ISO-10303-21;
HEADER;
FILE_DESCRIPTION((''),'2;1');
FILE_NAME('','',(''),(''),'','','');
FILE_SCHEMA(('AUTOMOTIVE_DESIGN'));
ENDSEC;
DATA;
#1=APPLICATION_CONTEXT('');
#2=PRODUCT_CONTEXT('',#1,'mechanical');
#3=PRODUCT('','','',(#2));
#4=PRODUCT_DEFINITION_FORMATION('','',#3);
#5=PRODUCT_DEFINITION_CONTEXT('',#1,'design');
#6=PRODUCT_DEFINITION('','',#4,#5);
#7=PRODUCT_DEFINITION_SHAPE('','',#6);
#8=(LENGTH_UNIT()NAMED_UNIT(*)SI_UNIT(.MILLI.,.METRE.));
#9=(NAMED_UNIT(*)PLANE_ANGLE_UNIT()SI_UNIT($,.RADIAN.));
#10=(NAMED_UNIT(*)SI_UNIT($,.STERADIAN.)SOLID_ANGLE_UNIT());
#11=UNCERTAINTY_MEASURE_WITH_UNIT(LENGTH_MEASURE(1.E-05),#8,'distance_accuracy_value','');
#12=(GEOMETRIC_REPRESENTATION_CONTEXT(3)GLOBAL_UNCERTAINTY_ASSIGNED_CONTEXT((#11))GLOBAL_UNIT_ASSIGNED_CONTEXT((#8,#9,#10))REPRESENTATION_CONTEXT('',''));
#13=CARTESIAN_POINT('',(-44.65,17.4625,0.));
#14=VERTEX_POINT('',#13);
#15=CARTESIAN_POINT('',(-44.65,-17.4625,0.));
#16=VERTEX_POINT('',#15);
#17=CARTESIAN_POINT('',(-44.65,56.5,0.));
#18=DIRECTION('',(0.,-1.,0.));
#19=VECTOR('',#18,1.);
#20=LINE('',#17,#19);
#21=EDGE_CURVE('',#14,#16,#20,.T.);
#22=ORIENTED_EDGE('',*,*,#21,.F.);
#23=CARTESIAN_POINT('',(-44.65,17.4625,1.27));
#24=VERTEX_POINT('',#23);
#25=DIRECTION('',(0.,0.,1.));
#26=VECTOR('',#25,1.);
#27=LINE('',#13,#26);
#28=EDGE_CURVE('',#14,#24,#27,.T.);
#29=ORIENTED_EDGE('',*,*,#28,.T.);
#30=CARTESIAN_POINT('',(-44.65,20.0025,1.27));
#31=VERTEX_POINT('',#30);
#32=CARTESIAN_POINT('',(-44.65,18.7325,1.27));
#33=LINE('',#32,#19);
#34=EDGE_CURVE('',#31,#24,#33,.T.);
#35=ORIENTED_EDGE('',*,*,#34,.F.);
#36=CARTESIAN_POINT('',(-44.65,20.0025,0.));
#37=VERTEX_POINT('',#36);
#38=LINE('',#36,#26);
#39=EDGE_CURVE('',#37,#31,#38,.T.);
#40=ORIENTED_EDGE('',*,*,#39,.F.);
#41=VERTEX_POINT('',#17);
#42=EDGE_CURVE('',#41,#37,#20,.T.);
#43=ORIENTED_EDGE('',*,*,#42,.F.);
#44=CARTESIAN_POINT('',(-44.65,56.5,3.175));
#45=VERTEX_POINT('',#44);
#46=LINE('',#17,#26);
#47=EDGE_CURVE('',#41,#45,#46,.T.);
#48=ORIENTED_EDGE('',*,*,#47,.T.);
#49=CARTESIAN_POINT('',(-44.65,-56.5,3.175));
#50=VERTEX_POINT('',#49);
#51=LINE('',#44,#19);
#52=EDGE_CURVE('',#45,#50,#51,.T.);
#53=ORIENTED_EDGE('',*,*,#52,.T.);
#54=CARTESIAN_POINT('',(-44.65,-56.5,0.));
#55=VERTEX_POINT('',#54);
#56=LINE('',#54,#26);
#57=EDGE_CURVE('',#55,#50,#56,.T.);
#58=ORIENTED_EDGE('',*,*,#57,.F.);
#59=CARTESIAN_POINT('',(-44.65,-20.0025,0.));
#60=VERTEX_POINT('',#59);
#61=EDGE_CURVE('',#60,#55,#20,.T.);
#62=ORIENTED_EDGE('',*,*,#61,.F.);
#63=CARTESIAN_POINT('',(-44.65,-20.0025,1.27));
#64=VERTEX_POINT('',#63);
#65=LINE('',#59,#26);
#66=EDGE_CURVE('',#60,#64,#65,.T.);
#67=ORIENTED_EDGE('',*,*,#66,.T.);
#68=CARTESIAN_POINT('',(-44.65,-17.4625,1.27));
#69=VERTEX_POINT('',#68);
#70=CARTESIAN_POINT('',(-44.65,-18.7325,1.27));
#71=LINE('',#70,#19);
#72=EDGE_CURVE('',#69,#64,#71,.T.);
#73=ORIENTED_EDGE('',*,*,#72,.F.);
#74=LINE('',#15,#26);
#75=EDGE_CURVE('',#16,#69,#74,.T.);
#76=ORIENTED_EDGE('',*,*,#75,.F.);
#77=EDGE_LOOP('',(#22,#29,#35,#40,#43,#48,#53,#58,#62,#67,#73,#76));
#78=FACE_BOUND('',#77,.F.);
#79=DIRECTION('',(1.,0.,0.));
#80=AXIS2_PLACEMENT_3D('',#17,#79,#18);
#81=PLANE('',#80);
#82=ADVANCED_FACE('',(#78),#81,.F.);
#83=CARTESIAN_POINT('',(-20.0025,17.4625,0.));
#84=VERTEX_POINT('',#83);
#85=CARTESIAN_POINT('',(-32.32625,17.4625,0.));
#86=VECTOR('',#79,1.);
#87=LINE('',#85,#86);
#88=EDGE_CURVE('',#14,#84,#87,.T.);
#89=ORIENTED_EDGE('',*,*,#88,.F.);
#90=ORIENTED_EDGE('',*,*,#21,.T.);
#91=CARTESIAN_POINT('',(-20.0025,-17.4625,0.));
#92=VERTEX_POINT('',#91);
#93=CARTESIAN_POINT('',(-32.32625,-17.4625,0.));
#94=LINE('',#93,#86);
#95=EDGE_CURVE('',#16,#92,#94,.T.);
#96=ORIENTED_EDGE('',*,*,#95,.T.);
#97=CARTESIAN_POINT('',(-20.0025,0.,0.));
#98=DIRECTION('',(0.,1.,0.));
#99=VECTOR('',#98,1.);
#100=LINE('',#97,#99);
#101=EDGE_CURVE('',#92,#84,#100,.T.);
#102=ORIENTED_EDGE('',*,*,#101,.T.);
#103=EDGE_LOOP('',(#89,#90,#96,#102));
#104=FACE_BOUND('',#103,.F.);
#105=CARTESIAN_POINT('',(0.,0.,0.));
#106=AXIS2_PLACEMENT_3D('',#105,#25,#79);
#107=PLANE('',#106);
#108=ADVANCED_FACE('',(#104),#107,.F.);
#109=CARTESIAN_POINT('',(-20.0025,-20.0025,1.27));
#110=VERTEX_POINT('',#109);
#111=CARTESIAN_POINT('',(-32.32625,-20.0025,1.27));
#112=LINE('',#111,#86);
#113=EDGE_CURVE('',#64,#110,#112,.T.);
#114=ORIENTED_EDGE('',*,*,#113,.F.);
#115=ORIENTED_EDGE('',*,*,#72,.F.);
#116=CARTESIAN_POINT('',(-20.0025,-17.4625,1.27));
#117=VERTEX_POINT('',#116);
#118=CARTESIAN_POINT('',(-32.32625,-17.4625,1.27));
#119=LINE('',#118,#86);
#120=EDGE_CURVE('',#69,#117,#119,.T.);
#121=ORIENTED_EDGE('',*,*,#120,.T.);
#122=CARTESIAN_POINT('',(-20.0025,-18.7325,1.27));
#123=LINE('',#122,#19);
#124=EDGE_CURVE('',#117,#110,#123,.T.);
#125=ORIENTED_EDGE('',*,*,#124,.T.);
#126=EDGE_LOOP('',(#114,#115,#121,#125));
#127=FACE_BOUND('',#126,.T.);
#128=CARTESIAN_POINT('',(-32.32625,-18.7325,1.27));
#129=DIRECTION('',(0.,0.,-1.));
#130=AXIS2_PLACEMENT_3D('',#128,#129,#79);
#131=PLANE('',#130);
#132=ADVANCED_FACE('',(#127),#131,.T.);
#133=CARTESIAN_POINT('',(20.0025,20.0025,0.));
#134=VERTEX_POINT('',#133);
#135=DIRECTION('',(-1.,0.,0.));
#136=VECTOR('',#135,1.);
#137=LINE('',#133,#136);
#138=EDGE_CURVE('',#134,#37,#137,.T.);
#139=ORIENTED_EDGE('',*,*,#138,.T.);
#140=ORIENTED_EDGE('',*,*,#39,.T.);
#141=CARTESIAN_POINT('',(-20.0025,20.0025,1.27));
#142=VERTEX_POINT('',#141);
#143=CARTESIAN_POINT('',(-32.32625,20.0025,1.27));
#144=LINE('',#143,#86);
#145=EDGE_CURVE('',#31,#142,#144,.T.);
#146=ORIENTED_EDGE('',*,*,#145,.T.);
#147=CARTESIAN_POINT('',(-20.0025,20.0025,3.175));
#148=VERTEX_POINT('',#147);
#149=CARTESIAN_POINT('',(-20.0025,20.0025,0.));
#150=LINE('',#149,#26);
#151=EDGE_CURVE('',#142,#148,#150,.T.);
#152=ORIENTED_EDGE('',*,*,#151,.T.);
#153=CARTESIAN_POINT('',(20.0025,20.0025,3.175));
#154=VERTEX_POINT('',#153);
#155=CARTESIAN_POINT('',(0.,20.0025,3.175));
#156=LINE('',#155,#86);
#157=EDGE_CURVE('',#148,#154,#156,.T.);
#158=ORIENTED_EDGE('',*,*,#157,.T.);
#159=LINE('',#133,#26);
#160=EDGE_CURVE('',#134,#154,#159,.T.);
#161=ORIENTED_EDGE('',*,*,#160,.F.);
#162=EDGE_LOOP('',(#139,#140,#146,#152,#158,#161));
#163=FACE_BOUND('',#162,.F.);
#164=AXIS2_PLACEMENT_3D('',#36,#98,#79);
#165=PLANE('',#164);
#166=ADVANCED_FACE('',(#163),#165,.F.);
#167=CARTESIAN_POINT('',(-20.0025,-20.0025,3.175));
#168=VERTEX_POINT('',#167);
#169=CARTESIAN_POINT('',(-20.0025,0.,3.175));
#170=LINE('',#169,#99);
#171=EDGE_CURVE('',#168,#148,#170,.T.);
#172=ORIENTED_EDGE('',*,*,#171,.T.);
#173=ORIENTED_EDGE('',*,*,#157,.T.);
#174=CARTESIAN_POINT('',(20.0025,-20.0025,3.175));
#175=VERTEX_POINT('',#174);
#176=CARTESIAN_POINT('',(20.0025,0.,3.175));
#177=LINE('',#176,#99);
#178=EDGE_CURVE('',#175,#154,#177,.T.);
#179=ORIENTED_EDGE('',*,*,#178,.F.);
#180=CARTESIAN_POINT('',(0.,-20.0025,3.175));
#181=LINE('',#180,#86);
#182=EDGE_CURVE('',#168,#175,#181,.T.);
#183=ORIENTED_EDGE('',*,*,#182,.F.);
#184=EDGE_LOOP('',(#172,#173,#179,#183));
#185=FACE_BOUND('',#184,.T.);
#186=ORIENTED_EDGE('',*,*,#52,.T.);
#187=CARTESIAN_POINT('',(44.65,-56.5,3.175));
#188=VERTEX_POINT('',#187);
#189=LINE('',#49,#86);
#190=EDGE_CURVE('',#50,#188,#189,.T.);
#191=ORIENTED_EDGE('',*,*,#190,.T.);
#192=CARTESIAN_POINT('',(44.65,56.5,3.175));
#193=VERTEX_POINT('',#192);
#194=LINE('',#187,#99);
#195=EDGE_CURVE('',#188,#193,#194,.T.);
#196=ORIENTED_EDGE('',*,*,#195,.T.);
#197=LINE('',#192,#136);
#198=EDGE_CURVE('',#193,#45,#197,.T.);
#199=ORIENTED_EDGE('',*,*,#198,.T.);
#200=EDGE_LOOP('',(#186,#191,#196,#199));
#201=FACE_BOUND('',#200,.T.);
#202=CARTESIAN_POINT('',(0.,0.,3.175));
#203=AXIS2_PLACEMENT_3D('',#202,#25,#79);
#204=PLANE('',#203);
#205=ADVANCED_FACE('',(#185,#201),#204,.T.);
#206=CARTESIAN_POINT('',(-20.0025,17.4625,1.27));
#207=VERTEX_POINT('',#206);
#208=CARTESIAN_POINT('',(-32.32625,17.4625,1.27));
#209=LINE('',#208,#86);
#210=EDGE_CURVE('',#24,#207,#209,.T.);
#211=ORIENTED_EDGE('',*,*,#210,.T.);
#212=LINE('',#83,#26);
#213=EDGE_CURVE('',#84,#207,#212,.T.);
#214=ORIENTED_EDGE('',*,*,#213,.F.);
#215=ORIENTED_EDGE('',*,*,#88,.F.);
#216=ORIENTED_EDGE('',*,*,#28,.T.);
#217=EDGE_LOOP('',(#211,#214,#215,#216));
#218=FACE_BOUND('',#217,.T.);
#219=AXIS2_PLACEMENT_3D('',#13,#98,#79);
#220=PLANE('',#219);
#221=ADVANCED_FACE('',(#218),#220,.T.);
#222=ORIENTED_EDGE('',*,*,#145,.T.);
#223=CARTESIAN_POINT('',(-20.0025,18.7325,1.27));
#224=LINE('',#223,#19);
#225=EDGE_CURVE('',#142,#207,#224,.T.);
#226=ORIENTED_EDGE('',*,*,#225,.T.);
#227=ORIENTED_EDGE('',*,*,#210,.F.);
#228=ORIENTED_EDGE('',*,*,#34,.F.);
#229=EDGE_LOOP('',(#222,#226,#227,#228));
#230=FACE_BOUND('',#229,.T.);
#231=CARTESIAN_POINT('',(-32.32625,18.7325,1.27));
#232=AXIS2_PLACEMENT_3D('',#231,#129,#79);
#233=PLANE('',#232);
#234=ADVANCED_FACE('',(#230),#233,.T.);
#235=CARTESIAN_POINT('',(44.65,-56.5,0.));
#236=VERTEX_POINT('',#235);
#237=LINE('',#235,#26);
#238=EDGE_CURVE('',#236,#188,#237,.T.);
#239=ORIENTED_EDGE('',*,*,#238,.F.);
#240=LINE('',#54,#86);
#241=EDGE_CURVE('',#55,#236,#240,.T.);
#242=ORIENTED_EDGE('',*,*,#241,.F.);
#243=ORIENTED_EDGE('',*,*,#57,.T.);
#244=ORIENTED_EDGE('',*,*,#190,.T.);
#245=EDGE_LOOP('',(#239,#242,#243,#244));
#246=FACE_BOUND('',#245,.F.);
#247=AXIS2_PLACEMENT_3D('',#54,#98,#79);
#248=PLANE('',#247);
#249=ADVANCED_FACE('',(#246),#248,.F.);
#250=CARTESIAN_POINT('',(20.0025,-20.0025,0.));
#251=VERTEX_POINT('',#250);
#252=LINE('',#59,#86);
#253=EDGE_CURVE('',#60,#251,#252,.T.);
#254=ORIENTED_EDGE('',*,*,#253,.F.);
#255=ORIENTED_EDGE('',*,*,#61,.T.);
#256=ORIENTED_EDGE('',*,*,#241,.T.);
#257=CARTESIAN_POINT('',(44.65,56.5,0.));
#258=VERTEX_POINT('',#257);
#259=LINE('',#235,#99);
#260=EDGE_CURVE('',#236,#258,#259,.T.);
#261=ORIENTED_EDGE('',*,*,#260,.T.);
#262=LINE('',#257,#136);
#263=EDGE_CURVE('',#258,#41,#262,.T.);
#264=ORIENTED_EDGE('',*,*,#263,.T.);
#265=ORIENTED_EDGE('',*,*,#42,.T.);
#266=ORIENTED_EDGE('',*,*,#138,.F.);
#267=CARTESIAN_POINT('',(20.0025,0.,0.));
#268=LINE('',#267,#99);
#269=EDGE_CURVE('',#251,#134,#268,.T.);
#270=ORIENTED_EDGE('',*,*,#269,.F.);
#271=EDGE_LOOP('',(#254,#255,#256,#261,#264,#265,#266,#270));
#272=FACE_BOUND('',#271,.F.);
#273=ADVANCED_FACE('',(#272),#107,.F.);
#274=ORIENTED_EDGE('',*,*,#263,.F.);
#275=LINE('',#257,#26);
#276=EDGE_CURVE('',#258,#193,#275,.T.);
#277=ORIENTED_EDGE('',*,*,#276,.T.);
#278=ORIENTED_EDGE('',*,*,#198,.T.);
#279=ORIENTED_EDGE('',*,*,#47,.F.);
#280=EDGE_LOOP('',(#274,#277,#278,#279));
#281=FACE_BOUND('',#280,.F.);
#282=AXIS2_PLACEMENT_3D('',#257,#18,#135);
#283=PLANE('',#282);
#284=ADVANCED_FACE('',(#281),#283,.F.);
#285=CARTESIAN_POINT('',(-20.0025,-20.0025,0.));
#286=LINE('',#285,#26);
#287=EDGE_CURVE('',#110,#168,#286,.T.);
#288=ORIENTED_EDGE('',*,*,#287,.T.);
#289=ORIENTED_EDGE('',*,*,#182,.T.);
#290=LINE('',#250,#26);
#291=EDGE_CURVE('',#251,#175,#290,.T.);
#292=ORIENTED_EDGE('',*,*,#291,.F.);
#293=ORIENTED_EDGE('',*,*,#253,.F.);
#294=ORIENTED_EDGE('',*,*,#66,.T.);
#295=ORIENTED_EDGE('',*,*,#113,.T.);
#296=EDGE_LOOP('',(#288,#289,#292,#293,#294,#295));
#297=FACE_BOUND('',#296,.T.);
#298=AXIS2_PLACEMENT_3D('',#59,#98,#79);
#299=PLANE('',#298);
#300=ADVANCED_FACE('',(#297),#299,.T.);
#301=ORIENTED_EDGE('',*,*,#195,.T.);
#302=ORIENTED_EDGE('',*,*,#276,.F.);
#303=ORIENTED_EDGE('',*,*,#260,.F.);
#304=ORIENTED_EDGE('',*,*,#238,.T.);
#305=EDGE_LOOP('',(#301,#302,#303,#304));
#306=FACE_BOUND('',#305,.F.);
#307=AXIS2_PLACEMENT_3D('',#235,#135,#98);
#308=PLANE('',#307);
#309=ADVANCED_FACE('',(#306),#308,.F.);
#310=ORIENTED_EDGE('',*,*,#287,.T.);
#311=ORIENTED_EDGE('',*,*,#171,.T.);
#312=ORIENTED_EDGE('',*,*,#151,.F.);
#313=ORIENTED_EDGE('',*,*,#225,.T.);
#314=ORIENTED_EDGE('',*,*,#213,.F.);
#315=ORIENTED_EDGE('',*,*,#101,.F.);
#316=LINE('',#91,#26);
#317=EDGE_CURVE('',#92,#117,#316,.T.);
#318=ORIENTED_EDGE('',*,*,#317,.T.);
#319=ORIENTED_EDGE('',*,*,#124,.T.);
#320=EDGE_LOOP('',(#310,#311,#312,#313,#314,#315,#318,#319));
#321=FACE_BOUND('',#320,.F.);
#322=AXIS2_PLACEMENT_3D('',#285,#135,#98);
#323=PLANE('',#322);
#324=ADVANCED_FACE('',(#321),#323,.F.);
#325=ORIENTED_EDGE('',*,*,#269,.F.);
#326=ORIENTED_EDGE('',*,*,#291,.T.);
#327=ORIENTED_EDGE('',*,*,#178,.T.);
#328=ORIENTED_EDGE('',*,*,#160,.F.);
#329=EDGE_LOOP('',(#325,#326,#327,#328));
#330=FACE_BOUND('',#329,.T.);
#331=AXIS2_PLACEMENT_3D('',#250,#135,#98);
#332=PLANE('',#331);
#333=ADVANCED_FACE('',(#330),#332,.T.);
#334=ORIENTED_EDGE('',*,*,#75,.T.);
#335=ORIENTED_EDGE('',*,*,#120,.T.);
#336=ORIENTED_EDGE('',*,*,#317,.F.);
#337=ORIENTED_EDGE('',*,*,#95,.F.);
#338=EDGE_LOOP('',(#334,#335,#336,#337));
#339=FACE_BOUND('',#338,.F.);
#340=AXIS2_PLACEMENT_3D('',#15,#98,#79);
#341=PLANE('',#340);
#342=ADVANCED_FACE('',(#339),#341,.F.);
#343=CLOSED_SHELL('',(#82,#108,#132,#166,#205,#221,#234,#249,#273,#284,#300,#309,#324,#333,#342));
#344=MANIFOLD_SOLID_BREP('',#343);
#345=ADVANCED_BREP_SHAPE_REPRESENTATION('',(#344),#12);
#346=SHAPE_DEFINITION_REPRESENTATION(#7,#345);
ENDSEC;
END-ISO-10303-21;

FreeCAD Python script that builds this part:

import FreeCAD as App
import Part
import Sketcher
Q = App.Units.Quantity

doc = App.newDocument("Part")
body = doc.addObject("PartDesign::Body", "Body")

# Sketch on XY plane
sketch1 = body.newObject("Sketcher::SketchObject", "Sketch")
sketch1.AttachmentSupport = (doc.getObject("XY_Plane"), [""])
sketch1.MapMode = "FlatFace"
sketch1.addGeometry([
    Part.LineSegment(App.Vector(-45, -56, 0), App.Vector(45, -56, 0)),  # 0
    Part.LineSegment(App.Vector(45, -56, 0), App.Vector(45, 56, 0)),  # 1
    Part.LineSegment(App.Vector(45, 56, 0), App.Vector(-45, 56, 0)),  # 2
    Part.LineSegment(App.Vector(-45, 56, 0), App.Vector(-45, -56, 0)),  # 3
    Part.LineSegment(App.Vector(20, -20, 0), App.Vector(-20, -20, 0)),  # 4
    Part.LineSegment(App.Vector(-20, -20, 0), App.Vector(-20, 20, 0)),  # 5
    Part.LineSegment(App.Vector(-20, 20, 0), App.Vector(20, 20, 0)),  # 6
    Part.LineSegment(App.Vector(20, 20, 0), App.Vector(20, -20, 0)),  # 7
], False)
sketch1.addConstraint([
    Sketcher.Constraint("Coincident", 0, 2, 1, 1),
    Sketcher.Constraint("Coincident", 1, 2, 2, 1),
    Sketcher.Constraint("Coincident", 2, 2, 3, 1),
    Sketcher.Constraint("Coincident", 3, 2, 0, 1),
    Sketcher.Constraint("Coincident", 4, 2, 5, 1),
    Sketcher.Constraint("Coincident", 5, 2, 6, 1),
    Sketcher.Constraint("Coincident", 6, 2, 7, 1),
    Sketcher.Constraint("Coincident", 7, 2, 4, 1),
    Sketcher.Constraint("Horizontal", 0),
    Sketcher.Constraint("Vertical", 1),
    Sketcher.Constraint("Horizontal", 2),
    Sketcher.Constraint("Vertical", 3),
    Sketcher.Constraint("Horizontal", 4),
    Sketcher.Constraint("Vertical", 5),
    Sketcher.Constraint("Horizontal", 6),
    Sketcher.Constraint("Vertical", 7),
    Sketcher.Constraint("Symmetric", 0, 2, 2, 2, -1, 1),
    Sketcher.Constraint("Symmetric", 4, 2, 6, 2, -1, 1),
    Sketcher.Constraint("Equal", 6, 5),
    Sketcher.Constraint("DistanceX", 4, 2, 4, 1, Q("1.575 in")),
    Sketcher.Constraint("DistanceX", 0, 1, 0, 2, 89.3),
    Sketcher.Constraint("DistanceY", 1, 1, 1, 2, 113.0),
])
pad1 = body.newObject("PartDesign::Pad", "Pad")
pad1.Profile = sketch1
pad1.Length = Q("0.125 in")

# Sketch on XY plane
sketch2 = body.newObject("Sketcher::SketchObject", "Sketch001")
sketch2.AttachmentSupport = (doc.getObject("XY_Plane"), [""])
sketch2.MapMode = "FlatFace"
sketch2.addGeometry([
    Part.LineSegment(App.Vector(-44.6, -20, 0), App.Vector(-44.6, -17.5, 0)),  # 0
    Part.LineSegment(App.Vector(-44.6, -17.5, 0), App.Vector(-20, -17.5, 0)),  # 1
    Part.LineSegment(App.Vector(-20, -17.5, 0), App.Vector(-20, -20, 0)),  # 2
    Part.LineSegment(App.Vector(-20, -20, 0), App.Vector(-44.6, -20, 0)),  # 3
    Part.LineSegment(App.Vector(-44.6, 17.5, 0), App.Vector(-44.6, 20, 0)),  # 4
    Part.LineSegment(App.Vector(-44.6, 20, 0), App.Vector(-20, 20, 0)),  # 5
    Part.LineSegment(App.Vector(-20, 20, 0), App.Vector(-20, 17.5, 0)),  # 6
    Part.LineSegment(App.Vector(-20, 17.5, 0), App.Vector(-44.6, 17.5, 0)),  # 7
], False)
sketch2.addConstraint([
    Sketcher.Constraint("Coincident", 0, 2, 1, 1),
    Sketcher.Constraint("Coincident", 1, 2, 2, 1),
    Sketcher.Constraint("Coincident", 2, 2, 3, 1),
    Sketcher.Constraint("Coincident", 3, 2, 0, 1),
    Sketcher.Constraint("Coincident", 4, 2, 5, 1),
    Sketcher.Constraint("Coincident", 5, 2, 6, 1),
    Sketcher.Constraint("Coincident", 6, 2, 7, 1),
    Sketcher.Constraint("Coincident", 7, 2, 4, 1),
    Sketcher.Constraint("Vertical", 0),
    Sketcher.Constraint("Horizontal", 1),
    Sketcher.Constraint("Vertical", 2),
    Sketcher.Constraint("Horizontal", 3),
    Sketcher.Constraint("Vertical", 4),
    Sketcher.Constraint("Horizontal", 5),
    Sketcher.Constraint("Vertical", 6),
    Sketcher.Constraint("Horizontal", 7),
    Sketcher.Constraint("Symmetric", 3, 2, 4, 2, -1),
    Sketcher.Constraint("Symmetric", 1, 2, 6, 2, -1),
    Sketcher.Constraint("DistanceY", 0, 1, 0, 2, Q("0.1 in")),
    Sketcher.Constraint("DistanceY", 0, 2, -1, 1, Q("0.6875 in")),
    Sketcher.Constraint("DistanceX", 1, 1, 1, 2, 24.6475),
    Sketcher.Constraint("DistanceX", 1, 2, -1, 1, Q("0.7875 in")),
])
pocket1 = body.newObject("PartDesign::Pocket", "Pocket")
pocket1.Profile = sketch2
pocket1.Length = Q("0.05 in")
pocket1.Reversed = True

doc.recompute()
